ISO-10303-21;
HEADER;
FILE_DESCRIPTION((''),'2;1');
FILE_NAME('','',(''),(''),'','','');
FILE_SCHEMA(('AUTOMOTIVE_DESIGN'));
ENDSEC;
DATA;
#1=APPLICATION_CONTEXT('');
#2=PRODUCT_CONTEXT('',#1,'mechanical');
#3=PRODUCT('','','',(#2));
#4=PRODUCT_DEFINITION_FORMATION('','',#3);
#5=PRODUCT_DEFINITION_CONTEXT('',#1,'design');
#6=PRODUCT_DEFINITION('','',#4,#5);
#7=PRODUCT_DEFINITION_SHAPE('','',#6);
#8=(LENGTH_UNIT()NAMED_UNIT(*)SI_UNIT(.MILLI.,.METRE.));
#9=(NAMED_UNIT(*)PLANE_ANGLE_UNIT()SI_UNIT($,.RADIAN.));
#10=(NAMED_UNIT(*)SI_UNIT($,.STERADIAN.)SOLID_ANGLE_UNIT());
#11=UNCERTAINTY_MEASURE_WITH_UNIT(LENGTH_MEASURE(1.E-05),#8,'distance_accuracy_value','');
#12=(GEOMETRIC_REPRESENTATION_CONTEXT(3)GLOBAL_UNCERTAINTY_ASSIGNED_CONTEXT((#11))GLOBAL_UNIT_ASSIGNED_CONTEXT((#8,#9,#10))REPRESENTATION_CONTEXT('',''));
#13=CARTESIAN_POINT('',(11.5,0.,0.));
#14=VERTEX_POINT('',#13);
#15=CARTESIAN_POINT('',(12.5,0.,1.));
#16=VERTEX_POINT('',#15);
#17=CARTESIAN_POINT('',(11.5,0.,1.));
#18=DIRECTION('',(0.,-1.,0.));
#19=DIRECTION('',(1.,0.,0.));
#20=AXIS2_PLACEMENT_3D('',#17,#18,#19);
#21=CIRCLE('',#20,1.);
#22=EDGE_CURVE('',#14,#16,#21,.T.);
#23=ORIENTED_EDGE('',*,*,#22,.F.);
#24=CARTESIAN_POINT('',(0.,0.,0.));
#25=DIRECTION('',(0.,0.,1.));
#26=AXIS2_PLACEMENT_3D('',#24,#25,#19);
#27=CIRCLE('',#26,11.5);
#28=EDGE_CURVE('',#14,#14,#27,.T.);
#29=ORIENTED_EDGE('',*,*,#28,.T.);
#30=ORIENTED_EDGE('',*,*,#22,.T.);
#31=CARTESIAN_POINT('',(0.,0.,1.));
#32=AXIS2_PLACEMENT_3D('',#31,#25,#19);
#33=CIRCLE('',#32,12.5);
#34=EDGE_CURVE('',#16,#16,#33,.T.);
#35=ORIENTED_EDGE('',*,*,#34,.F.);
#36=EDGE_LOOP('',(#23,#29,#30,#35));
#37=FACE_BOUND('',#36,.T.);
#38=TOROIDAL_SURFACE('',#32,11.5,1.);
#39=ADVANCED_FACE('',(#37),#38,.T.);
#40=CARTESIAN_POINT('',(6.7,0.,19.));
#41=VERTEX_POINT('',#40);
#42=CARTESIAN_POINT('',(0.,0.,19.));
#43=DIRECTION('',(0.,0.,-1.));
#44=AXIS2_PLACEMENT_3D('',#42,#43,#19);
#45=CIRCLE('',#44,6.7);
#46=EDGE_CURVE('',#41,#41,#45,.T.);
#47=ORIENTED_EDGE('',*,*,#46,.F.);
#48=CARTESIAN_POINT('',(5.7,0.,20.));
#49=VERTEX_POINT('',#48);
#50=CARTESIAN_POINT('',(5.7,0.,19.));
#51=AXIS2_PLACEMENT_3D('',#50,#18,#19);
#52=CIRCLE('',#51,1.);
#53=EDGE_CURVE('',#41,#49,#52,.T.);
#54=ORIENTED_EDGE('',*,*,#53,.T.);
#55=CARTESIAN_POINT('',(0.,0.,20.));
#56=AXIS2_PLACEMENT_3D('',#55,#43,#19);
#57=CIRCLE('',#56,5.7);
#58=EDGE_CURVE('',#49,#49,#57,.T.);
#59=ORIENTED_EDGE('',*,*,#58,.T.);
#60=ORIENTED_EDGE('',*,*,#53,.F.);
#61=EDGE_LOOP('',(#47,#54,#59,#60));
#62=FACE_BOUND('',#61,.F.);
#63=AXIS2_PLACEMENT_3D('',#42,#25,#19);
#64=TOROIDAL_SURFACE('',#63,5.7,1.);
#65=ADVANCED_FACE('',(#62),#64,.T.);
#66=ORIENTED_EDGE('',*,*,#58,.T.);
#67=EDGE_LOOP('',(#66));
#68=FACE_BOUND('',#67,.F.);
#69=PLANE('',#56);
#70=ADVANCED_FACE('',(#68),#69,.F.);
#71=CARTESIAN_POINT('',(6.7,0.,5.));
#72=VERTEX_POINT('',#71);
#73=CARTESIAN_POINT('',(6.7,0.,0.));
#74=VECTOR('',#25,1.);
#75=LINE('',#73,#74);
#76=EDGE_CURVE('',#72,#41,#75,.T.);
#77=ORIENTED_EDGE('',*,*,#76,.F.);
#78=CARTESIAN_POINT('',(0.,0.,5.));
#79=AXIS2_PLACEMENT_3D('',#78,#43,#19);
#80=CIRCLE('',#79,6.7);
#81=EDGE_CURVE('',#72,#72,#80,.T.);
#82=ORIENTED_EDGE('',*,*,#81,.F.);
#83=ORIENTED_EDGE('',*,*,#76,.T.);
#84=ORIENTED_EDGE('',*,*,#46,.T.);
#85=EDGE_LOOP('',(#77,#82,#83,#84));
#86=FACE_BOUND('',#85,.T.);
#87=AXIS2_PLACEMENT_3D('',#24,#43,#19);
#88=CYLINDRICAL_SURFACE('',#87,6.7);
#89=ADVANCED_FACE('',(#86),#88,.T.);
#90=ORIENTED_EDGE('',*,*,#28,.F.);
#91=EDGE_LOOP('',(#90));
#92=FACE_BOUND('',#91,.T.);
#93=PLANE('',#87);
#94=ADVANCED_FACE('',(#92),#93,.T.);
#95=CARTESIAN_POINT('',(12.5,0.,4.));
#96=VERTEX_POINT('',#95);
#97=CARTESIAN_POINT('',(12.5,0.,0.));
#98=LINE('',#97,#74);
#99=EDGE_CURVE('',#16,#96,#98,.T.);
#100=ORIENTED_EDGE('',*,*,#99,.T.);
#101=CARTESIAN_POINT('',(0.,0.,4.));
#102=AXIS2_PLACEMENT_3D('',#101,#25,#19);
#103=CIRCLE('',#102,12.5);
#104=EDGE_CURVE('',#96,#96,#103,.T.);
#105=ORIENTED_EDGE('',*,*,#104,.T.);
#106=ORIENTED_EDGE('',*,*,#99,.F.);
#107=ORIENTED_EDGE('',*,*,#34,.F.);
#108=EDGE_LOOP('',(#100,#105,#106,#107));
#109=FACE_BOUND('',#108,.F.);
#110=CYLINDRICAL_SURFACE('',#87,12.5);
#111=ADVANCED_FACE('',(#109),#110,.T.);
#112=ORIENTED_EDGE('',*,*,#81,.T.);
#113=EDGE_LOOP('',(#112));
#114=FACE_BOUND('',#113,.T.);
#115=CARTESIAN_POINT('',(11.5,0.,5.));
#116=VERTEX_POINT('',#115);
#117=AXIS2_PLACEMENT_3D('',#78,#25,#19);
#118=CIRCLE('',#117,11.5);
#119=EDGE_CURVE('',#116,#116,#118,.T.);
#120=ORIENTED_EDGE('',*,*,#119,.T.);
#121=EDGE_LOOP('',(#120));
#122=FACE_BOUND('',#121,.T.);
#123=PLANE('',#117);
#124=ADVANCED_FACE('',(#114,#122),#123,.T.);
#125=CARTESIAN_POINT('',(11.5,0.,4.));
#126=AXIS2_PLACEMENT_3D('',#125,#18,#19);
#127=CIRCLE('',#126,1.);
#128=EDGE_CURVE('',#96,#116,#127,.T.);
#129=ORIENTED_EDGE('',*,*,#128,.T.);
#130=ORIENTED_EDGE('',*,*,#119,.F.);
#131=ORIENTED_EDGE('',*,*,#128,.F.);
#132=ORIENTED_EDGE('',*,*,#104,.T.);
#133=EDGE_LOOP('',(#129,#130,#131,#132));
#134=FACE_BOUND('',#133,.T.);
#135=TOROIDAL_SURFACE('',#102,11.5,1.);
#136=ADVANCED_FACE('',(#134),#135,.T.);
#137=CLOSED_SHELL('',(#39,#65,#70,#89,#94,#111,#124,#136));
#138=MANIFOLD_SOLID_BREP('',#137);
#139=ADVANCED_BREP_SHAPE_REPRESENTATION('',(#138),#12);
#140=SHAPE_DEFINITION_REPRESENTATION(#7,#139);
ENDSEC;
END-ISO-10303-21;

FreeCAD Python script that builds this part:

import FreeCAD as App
import Part
import Sketcher

V = App.Vector
Q = App.Units.Quantity


def edges_at(feature, points):
    """Names of the edges that pass closest to the given points."""
    edges = feature.Shape.Edges
    near = lambda p: min(range(len(edges)), key=lambda i: edges[i].distToShape(Part.Vertex(*p))[0])
    return sorted({f"Edge{near(p) + 1}" for p in points})

doc = App.newDocument("Part")
params = doc.addObject("Spreadsheet::Sheet", "Params")
for row, (alias, value) in enumerate([
    ("sketch1_diameter", "25 mm"),
    ("pad1_length", "5 mm"),
    ("sketch2_diameter", "13.4 mm"),
    ("pad2_length", "20 mm"),
    ("fillet_radius", "1 mm"),
], start=1):
    params.set(f"A{row}", alias)
    params.set(f"B{row}", "=" + value)
    params.setAlias(f"B{row}", alias)

body = doc.addObject("PartDesign::Body", "Body")

# Sketch on XY plane
sketch1 = doc.addObject("Sketcher::SketchObject", "Sketch")
body.addObject(sketch1)
sketch1.AttachmentSupport = (doc.XY_Plane, [""])
sketch1.MapMode = "FlatFace"
sketch1.addGeometry(Part.Circle(V(0, 0, 0), V(0, 0, 1), 12), False)
sketch1.addConstraint([
    Sketcher.Constraint("Coincident", 0, 3, -1, 1),
    Sketcher.Constraint("Diameter", 0, Q("25 mm")),
])
sketch1.setExpression("Constraints[1]", "Params.sketch1_diameter")
pad1 = doc.addObject("PartDesign::Pad", "Pad")
body.addObject(pad1)
pad1.Profile = sketch1
pad1.setExpression("Length", "Params.pad1_length")

# Sketch on XY plane
sketch2 = doc.addObject("Sketcher::SketchObject", "Sketch001")
body.addObject(sketch2)
sketch2.AttachmentSupport = (doc.XY_Plane, [""])
sketch2.MapMode = "FlatFace"
sketch2.addGeometry(Part.Circle(V(0, 0, 0), V(0, 0, 1), 7), False)
sketch2.addConstraint([
    Sketcher.Constraint("Coincident", 0, 3, -1, 1),
    Sketcher.Constraint("Diameter", 0, Q("13.4 mm")),
])
sketch2.setExpression("Constraints[1]", "Params.sketch2_diameter")
pad2 = doc.addObject("PartDesign::Pad", "Pad001")
body.addObject(pad2)
pad2.Profile = sketch2
pad2.setExpression("Length", "Params.pad2_length")
doc.recompute()

fillet = doc.addObject("PartDesign::Fillet", "Fillet")
body.addObject(fillet)
fillet.Base = (pad2, edges_at(pad2, [(-12.5, 0, 0), (-12.5, 0, 5), (-6.7, 0, 20)]))
fillet.setExpression("Radius", "Params.fillet_radius")

doc.recompute()
